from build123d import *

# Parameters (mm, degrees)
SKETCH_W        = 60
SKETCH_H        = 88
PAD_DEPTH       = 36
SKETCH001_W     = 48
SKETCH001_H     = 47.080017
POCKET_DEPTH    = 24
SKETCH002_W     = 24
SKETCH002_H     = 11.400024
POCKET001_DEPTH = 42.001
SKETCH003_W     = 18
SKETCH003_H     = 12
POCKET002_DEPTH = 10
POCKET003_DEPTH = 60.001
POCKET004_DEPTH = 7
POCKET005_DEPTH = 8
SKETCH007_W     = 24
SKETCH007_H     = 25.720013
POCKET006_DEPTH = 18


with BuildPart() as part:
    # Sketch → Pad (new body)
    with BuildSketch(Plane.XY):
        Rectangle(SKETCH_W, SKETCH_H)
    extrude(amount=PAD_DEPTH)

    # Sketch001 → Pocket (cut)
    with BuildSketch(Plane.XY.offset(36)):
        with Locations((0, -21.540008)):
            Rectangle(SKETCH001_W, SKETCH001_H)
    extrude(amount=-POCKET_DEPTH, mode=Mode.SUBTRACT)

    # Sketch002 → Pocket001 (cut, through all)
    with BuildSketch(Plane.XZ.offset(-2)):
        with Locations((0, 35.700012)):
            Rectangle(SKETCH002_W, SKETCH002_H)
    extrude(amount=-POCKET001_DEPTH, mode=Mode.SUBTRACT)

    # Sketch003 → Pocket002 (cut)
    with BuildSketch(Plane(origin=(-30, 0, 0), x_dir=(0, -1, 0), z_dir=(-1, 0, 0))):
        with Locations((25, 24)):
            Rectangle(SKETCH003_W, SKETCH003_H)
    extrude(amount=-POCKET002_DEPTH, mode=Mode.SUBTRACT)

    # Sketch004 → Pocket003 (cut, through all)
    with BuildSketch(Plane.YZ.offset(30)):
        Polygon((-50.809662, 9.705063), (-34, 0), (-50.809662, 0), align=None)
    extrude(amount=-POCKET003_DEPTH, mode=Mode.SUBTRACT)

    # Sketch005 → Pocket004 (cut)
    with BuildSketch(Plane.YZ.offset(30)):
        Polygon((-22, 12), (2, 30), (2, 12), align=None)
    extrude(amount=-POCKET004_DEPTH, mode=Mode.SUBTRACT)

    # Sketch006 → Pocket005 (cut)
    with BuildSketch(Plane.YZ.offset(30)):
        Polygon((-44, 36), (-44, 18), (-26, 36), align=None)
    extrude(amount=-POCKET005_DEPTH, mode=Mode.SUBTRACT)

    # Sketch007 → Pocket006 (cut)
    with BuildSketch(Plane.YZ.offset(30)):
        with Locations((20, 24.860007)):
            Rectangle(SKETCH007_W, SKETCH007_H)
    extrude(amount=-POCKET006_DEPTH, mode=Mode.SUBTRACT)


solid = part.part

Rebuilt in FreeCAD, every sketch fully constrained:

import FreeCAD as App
import Part
import Sketcher
from FreeCAD import Vector
Q = App.Units.Quantity


def add_polygon(sketch, points):
    """Adds a closed chain of lines whose ends are joined by coincident constraints."""
    first, n = sketch.GeometryCount, len(points)
    for a, b in zip(points, points[1:] + points[:1]):
        sketch.addGeometry(Part.LineSegment(App.Vector(*a, 0), App.Vector(*b, 0)), False)
    for i in range(n):
        sketch.addConstraint(Sketcher.Constraint("Coincident", first + i, 2, first + (i + 1) % n, 1))

doc = App.newDocument("Part")
body = doc.addObject("PartDesign::Body", "Body")

# Sketch on XY plane
sketch1 = body.newObject("Sketcher::SketchObject", "Sketch")
sketch1.AttachmentSupport = (doc.getObject("XY_Plane"), [""])
sketch1.MapMode = "FlatFace"
add_polygon(sketch1, [(-30, 44), (-30, -44), (30, -44), (30, 44)])  # lines 0-3
sketch1.addConstraint([
    Sketcher.Constraint("Vertical", 0),
    Sketcher.Constraint("Horizontal", 1),
    Sketcher.Constraint("Vertical", 2),
    Sketcher.Constraint("Horizontal", 3),
    Sketcher.Constraint("Symmetric", 0, 2, 2, 2, -1, 1),
    Sketcher.Constraint("DistanceX", 1, 1, 1, 2, Q("60 mm")),
    Sketcher.Constraint("DistanceY", 0, 2, 0, 1, Q("88 mm")),
])
pad1 = body.newObject("PartDesign::Pad", "Pad")
pad1.Profile = sketch1
pad1.Length = 36

# Sketch on XY plane
sketch2 = body.newObject("Sketcher::SketchObject", "Sketch001")
sketch2.AttachmentSupport = (doc.getObject("XY_Plane"), [""])
sketch2.MapMode = "FlatFace"
sketch2.AttachmentOffset = App.Placement(Vector(0, 0, 36), App.Rotation())
add_polygon(sketch2, [(-24, 2), (-24, -45), (24, -45), (24, 2)])  # lines 0-3
sketch2.addConstraint([
    Sketcher.Constraint("Vertical", 0),
    Sketcher.Constraint("Horizontal", 1),
    Sketcher.Constraint("Vertical", 2),
    Sketcher.Constraint("Horizontal", 3),
    Sketcher.Constraint("DistanceX", 1, 1, 1, 2, Q("48 mm")),
    Sketcher.Constraint("DistanceX", 0, 2, -1, 1, Q("24 mm")),
    Sketcher.Constraint("DistanceY", -1, 1, 2, 2, Q("2.000001 mm")),
    Sketcher.Constraint("DistanceY", 0, 2, 0, 1, Q("47.080017 mm")),
])
pocket1 = body.newObject("PartDesign::Pocket", "Pocket")
pocket1.Profile = sketch2
pocket1.Length = 24

# Sketch on XZ plane
sketch3 = body.newObject("Sketcher::SketchObject", "Sketch002")
sketch3.AttachmentSupport = (doc.getObject("XZ_Plane"), [""])
sketch3.MapMode = "FlatFace"
sketch3.AttachmentOffset = App.Placement(Vector(0, 0, -2), App.Rotation())
add_polygon(sketch3, [(-12, 41), (-12, 30), (12, 30), (12, 41)])  # lines 0-3
sketch3.addConstraint([
    Sketcher.Constraint("Vertical", 0),
    Sketcher.Constraint("Horizontal", 1),
    Sketcher.Constraint("Vertical", 2),
    Sketcher.Constraint("Horizontal", 3),
    Sketcher.Constraint("DistanceX", 1, 1, 1, 2, Q("24 mm")),
    Sketcher.Constraint("DistanceX", 0, 2, -1, 1, Q("12 mm")),
    Sketcher.Constraint("DistanceY", -1, 1, 0, 2, Q("30 mm")),
    Sketcher.Constraint("DistanceY", 0, 2, 0, 1, Q("11.400024 mm")),
])
pocket2 = body.newObject("PartDesign::Pocket", "Pocket001")
pocket2.Profile = sketch3
pocket2.Type = "ThroughAll"

# Sketch on YZ plane
sketch4 = body.newObject("Sketcher::SketchObject", "Sketch003")
sketch4.AttachmentSupport = (doc.getObject("YZ_Plane"), [""])
sketch4.MapMode = "FlatFace"
sketch4.AttachmentOffset = App.Placement(Vector(0, 0, -30), App.Rotation())
add_polygon(sketch4, [(-16, 30), (-16, 18), (-34, 18), (-34, 30)])  # lines 0-3
sketch4.addConstraint([
    Sketcher.Constraint("Vertical", 0),
    Sketcher.Constraint("Horizontal", 1),
    Sketcher.Constraint("Vertical", 2),
    Sketcher.Constraint("Horizontal", 3),
    Sketcher.Constraint("DistanceX", 1, 2, 1, 1, Q("18 mm")),
    Sketcher.Constraint("DistanceY", 0, 2, 0, 1, Q("12 mm")),
    Sketcher.Constraint("DistanceX", 0, 2, -1, 1, Q("16 mm")),
    Sketcher.Constraint("DistanceY", -1, 1, 0, 2, Q("18 mm")),
])
pocket3 = body.newObject("PartDesign::Pocket", "Pocket002")
pocket3.Profile = sketch4
pocket3.Length = 10
pocket3.Reversed = True

# Sketch on YZ plane
sketch5 = body.newObject("Sketcher::SketchObject", "Sketch004")
sketch5.AttachmentSupport = (doc.getObject("YZ_Plane"), [""])
sketch5.MapMode = "FlatFace"
sketch5.AttachmentOffset = App.Placement(Vector(0, 0, 30), App.Rotation())
add_polygon(sketch5, [(-34, 0), (-51, 10), (-51, 0)])  # lines 0-2
sketch5.addConstraint([
    Sketcher.Constraint("Vertical", 1),
    Sketcher.Constraint("Horizontal", 2),
    Sketcher.Constraint("PointOnObject", 1, 2, -1),
    Sketcher.Constraint("Angle", 0, Q("150 deg")),
    Sketcher.Constraint("DistanceX", 2, 2, -1, 1, Q("34 mm")),
    Sketcher.Constraint("DistanceX", 2, 1, 2, 2, Q("16.809662 mm")),
])
pocket4 = body.newObject("PartDesign::Pocket", "Pocket003")
pocket4.Profile = sketch5
pocket4.Type = "ThroughAll"

# Sketch on YZ plane
sketch6 = body.newObject("Sketcher::SketchObject", "Sketch005")
sketch6.AttachmentSupport = (doc.getObject("YZ_Plane"), [""])
sketch6.MapMode = "FlatFace"
sketch6.AttachmentOffset = App.Placement(Vector(0, 0, 30), App.Rotation())
add_polygon(sketch6, [(2, 30), (-22, 12), (2, 12)])  # lines 0-2
sketch6.addConstraint([
    Sketcher.Constraint("Horizontal", 1),
    Sketcher.Constraint("Vertical", 2),
    Sketcher.Constraint("DistanceX", 1, 1, 1, 2, Q("24 mm")),
    Sketcher.Constraint("DistanceY", 2, 1, 2, 2, Q("18 mm")),
    Sketcher.Constraint("DistanceX", 0, 2, -1, 1, Q("22 mm")),
    Sketcher.Constraint("DistanceY", -1, 1, 0, 2, Q("12 mm")),
])
pocket5 = body.newObject("PartDesign::Pocket", "Pocket004")
pocket5.Profile = sketch6
pocket5.Length = 7

# Sketch on YZ plane
sketch7 = body.newObject("Sketcher::SketchObject", "Sketch006")
sketch7.AttachmentSupport = (doc.getObject("YZ_Plane"), [""])
sketch7.MapMode = "FlatFace"
sketch7.AttachmentOffset = App.Placement(Vector(0, 0, 30), App.Rotation())
add_polygon(sketch7, [(-44, 36), (-44, 18), (-26, 36)])  # lines 0-2
sketch7.addConstraint([
    Sketcher.Constraint("Vertical", 0),
    Sketcher.Constraint("Horizontal", 2),
    Sketcher.Constraint("Equal", 2, 0),
    Sketcher.Constraint("DistanceX", 2, 2, 2, 1, Q("18 mm")),
    Sketcher.Constraint("DistanceX", 0, 2, -1, 1, Q("44 mm")),
    Sketcher.Constraint("DistanceY", -1, 1, 0, 2, Q("18 mm")),
])
pocket6 = body.newObject("PartDesign::Pocket", "Pocket005")
pocket6.Profile = sketch7
pocket6.Length = 8

# Sketch on YZ plane
sketch8 = body.newObject("Sketcher::SketchObject", "Sketch007")
sketch8.AttachmentSupport = (doc.getObject("YZ_Plane"), [""])
sketch8.MapMode = "FlatFace"
sketch8.AttachmentOffset = App.Placement(Vector(0, 0, 30), App.Rotation())
add_polygon(sketch8, [(8, 38), (8, 12), (32, 12), (32, 38)])  # lines 0-3
sketch8.addConstraint([
    Sketcher.Constraint("Vertical", 0),
    Sketcher.Constraint("Horizontal", 1),
    Sketcher.Constraint("Vertical", 2),
    Sketcher.Constraint("Horizontal", 3),
    Sketcher.Constraint("DistanceX", 1, 1, 1, 2, Q("24 mm")),
    Sketcher.Constraint("DistanceX", -1, 1, 0, 2, Q("8 mm")),
    Sketcher.Constraint("DistanceY", -1, 1, 0, 2, Q("12.000001 mm")),
    Sketcher.Constraint("DistanceY", 0, 2, 0, 1, Q("25.720013 mm")),
])
pocket7 = body.newObject("PartDesign::Pocket", "Pocket006")
pocket7.Profile = sketch8
pocket7.Length = 18

doc.recompute()
